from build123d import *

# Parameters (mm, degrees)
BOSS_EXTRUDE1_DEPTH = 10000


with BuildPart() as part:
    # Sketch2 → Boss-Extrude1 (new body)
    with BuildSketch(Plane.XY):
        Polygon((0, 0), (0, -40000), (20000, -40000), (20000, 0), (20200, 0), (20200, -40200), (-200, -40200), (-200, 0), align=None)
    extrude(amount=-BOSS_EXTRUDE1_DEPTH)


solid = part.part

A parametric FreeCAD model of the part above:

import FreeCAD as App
import Part
import Sketcher
from FreeCAD import Vector


def add_polygon(sketch, points):
    """Adds a closed chain of lines whose ends are joined by coincident constraints."""
    first, n = sketch.GeometryCount, len(points)
    for a, b in zip(points, points[1:] + points[:1]):
        sketch.addGeometry(Part.LineSegment(App.Vector(*a, 0), App.Vector(*b, 0)), False)
    for i in range(n):
        sketch.addConstraint(Sketcher.Constraint("Coincident", first + i, 2, first + (i + 1) % n, 1))

doc = App.newDocument("Part")
body = doc.addObject("PartDesign::Body", "Body")

# Sketch on XY plane
sketch1 = body.newObject("Sketcher::SketchObject", "Sketch")
sketch1.AttachmentSupport = (doc.getObject("XY_Plane"), [""])
sketch1.MapMode = "FlatFace"
add_polygon(sketch1, [(0, -40000), (0, 0), (-200, 0), (-200, -40200), (20200, -40200), (20200, 0), (20000, 0), (20000, -40000)])  # lines 0-7
sketch1.addConstraint([
    Sketcher.Constraint("Vertical", 0),
    Sketcher.Constraint("Horizontal", 1),
    Sketcher.Constraint("Vertical", 2),
    Sketcher.Constraint("Horizontal", 3),
    Sketcher.Constraint("Vertical", 4),
    Sketcher.Constraint("Horizontal", 5),
    Sketcher.Constraint("Vertical", 6),
    Sketcher.Constraint("Horizontal", 7),
    Sketcher.Constraint("Coincident", 0, 2, -1, 1),
    Sketcher.Constraint("PointOnObject", 4, 2, -1),
    Sketcher.Constraint("Equal", 1, 5),
    Sketcher.Constraint("DistanceX", 1, 2, 1, 1, 200.0),
    Sketcher.Constraint("DistanceX", 3, 1, 3, 2, 20400.0),
    Sketcher.Constraint("DistanceY", 0, 1, 0, 2, 40000.0),
    Sketcher.Constraint("DistanceY", 2, 2, 2, 1, 40200.0),
])
pad1 = body.newObject("PartDesign::Pad", "Pad")
pad1.Profile = sketch1
pad1.Length = 10000
pad1.Reversed = True

doc.recompute()
